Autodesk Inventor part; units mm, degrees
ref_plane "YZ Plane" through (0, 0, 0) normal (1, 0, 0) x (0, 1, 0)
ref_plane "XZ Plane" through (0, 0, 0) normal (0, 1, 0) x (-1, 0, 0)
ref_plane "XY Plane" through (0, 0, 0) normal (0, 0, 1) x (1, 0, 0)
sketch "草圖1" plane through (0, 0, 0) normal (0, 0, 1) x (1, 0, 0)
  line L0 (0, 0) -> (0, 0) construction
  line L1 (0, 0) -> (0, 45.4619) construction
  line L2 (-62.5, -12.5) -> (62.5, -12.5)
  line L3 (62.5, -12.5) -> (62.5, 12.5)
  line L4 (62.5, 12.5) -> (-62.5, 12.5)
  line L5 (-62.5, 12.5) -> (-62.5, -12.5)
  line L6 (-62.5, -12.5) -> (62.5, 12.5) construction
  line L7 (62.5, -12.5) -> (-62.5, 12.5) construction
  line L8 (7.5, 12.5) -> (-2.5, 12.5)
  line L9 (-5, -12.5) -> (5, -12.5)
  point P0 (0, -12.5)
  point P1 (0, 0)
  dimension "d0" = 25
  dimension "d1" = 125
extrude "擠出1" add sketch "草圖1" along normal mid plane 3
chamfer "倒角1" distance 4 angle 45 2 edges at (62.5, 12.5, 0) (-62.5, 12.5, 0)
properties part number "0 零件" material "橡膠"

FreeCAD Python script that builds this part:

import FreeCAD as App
import Part
import Sketcher
from FreeCAD import Vector
Q = App.Units.Quantity


def edges_at(feature, points):
    """Names of the edges that pass closest to the given points."""
    edges = feature.Shape.Edges
    near = lambda p: min(range(len(edges)), key=lambda i: edges[i].distToShape(Part.Vertex(*p))[0])
    return sorted({f"Edge{near(p) + 1}" for p in points})


def add_polygon(sketch, points):
    """Adds a closed chain of lines whose ends are joined by coincident constraints."""
    first, n = sketch.GeometryCount, len(points)
    for a, b in zip(points, points[1:] + points[:1]):
        sketch.addGeometry(Part.LineSegment(App.Vector(*a, 0), App.Vector(*b, 0)), False)
    for i in range(n):
        sketch.addConstraint(Sketcher.Constraint("Coincident", first + i, 2, first + (i + 1) % n, 1))

doc = App.newDocument("Part")
body = doc.addObject("PartDesign::Body", "Body")

# Sketch on XY plane
sketch1 = doc.addObject("Sketcher::SketchObject", "Sketch")
body.addObject(sketch1)
sketch1.AttachmentSupport = (doc.XY_Plane, [""])
sketch1.MapMode = "FlatFace"
add_polygon(sketch1, [(-62, 12), (-62, -12), (62, -12), (62, 12)])  # lines 0-3
sketch1.addConstraint([
    Sketcher.Constraint("Vertical", 0),
    Sketcher.Constraint("Horizontal", 1),
    Sketcher.Constraint("Vertical", 2),
    Sketcher.Constraint("Horizontal", 3),
    Sketcher.Constraint("Symmetric", 0, 2, 2, 2, -1, 1),
    Sketcher.Constraint("DistanceX", 1, 1, 1, 2, Q("125 mm")),
    Sketcher.Constraint("DistanceY", 0, 2, 0, 1, Q("25 mm")),
])
pad1 = doc.addObject("PartDesign::Pad", "Pad")
body.addObject(pad1)
pad1.Profile = sketch1
pad1.Length = 3
pad1.Midplane = True
doc.recompute()

chamfer = doc.addObject("PartDesign::Chamfer", "Chamfer")
body.addObject(chamfer)
chamfer.Base = (pad1, edges_at(pad1, [(62.5, 12.5, 0), (-62.5, 12.5, 0)]))
chamfer.Size = 4

doc.recompute()
